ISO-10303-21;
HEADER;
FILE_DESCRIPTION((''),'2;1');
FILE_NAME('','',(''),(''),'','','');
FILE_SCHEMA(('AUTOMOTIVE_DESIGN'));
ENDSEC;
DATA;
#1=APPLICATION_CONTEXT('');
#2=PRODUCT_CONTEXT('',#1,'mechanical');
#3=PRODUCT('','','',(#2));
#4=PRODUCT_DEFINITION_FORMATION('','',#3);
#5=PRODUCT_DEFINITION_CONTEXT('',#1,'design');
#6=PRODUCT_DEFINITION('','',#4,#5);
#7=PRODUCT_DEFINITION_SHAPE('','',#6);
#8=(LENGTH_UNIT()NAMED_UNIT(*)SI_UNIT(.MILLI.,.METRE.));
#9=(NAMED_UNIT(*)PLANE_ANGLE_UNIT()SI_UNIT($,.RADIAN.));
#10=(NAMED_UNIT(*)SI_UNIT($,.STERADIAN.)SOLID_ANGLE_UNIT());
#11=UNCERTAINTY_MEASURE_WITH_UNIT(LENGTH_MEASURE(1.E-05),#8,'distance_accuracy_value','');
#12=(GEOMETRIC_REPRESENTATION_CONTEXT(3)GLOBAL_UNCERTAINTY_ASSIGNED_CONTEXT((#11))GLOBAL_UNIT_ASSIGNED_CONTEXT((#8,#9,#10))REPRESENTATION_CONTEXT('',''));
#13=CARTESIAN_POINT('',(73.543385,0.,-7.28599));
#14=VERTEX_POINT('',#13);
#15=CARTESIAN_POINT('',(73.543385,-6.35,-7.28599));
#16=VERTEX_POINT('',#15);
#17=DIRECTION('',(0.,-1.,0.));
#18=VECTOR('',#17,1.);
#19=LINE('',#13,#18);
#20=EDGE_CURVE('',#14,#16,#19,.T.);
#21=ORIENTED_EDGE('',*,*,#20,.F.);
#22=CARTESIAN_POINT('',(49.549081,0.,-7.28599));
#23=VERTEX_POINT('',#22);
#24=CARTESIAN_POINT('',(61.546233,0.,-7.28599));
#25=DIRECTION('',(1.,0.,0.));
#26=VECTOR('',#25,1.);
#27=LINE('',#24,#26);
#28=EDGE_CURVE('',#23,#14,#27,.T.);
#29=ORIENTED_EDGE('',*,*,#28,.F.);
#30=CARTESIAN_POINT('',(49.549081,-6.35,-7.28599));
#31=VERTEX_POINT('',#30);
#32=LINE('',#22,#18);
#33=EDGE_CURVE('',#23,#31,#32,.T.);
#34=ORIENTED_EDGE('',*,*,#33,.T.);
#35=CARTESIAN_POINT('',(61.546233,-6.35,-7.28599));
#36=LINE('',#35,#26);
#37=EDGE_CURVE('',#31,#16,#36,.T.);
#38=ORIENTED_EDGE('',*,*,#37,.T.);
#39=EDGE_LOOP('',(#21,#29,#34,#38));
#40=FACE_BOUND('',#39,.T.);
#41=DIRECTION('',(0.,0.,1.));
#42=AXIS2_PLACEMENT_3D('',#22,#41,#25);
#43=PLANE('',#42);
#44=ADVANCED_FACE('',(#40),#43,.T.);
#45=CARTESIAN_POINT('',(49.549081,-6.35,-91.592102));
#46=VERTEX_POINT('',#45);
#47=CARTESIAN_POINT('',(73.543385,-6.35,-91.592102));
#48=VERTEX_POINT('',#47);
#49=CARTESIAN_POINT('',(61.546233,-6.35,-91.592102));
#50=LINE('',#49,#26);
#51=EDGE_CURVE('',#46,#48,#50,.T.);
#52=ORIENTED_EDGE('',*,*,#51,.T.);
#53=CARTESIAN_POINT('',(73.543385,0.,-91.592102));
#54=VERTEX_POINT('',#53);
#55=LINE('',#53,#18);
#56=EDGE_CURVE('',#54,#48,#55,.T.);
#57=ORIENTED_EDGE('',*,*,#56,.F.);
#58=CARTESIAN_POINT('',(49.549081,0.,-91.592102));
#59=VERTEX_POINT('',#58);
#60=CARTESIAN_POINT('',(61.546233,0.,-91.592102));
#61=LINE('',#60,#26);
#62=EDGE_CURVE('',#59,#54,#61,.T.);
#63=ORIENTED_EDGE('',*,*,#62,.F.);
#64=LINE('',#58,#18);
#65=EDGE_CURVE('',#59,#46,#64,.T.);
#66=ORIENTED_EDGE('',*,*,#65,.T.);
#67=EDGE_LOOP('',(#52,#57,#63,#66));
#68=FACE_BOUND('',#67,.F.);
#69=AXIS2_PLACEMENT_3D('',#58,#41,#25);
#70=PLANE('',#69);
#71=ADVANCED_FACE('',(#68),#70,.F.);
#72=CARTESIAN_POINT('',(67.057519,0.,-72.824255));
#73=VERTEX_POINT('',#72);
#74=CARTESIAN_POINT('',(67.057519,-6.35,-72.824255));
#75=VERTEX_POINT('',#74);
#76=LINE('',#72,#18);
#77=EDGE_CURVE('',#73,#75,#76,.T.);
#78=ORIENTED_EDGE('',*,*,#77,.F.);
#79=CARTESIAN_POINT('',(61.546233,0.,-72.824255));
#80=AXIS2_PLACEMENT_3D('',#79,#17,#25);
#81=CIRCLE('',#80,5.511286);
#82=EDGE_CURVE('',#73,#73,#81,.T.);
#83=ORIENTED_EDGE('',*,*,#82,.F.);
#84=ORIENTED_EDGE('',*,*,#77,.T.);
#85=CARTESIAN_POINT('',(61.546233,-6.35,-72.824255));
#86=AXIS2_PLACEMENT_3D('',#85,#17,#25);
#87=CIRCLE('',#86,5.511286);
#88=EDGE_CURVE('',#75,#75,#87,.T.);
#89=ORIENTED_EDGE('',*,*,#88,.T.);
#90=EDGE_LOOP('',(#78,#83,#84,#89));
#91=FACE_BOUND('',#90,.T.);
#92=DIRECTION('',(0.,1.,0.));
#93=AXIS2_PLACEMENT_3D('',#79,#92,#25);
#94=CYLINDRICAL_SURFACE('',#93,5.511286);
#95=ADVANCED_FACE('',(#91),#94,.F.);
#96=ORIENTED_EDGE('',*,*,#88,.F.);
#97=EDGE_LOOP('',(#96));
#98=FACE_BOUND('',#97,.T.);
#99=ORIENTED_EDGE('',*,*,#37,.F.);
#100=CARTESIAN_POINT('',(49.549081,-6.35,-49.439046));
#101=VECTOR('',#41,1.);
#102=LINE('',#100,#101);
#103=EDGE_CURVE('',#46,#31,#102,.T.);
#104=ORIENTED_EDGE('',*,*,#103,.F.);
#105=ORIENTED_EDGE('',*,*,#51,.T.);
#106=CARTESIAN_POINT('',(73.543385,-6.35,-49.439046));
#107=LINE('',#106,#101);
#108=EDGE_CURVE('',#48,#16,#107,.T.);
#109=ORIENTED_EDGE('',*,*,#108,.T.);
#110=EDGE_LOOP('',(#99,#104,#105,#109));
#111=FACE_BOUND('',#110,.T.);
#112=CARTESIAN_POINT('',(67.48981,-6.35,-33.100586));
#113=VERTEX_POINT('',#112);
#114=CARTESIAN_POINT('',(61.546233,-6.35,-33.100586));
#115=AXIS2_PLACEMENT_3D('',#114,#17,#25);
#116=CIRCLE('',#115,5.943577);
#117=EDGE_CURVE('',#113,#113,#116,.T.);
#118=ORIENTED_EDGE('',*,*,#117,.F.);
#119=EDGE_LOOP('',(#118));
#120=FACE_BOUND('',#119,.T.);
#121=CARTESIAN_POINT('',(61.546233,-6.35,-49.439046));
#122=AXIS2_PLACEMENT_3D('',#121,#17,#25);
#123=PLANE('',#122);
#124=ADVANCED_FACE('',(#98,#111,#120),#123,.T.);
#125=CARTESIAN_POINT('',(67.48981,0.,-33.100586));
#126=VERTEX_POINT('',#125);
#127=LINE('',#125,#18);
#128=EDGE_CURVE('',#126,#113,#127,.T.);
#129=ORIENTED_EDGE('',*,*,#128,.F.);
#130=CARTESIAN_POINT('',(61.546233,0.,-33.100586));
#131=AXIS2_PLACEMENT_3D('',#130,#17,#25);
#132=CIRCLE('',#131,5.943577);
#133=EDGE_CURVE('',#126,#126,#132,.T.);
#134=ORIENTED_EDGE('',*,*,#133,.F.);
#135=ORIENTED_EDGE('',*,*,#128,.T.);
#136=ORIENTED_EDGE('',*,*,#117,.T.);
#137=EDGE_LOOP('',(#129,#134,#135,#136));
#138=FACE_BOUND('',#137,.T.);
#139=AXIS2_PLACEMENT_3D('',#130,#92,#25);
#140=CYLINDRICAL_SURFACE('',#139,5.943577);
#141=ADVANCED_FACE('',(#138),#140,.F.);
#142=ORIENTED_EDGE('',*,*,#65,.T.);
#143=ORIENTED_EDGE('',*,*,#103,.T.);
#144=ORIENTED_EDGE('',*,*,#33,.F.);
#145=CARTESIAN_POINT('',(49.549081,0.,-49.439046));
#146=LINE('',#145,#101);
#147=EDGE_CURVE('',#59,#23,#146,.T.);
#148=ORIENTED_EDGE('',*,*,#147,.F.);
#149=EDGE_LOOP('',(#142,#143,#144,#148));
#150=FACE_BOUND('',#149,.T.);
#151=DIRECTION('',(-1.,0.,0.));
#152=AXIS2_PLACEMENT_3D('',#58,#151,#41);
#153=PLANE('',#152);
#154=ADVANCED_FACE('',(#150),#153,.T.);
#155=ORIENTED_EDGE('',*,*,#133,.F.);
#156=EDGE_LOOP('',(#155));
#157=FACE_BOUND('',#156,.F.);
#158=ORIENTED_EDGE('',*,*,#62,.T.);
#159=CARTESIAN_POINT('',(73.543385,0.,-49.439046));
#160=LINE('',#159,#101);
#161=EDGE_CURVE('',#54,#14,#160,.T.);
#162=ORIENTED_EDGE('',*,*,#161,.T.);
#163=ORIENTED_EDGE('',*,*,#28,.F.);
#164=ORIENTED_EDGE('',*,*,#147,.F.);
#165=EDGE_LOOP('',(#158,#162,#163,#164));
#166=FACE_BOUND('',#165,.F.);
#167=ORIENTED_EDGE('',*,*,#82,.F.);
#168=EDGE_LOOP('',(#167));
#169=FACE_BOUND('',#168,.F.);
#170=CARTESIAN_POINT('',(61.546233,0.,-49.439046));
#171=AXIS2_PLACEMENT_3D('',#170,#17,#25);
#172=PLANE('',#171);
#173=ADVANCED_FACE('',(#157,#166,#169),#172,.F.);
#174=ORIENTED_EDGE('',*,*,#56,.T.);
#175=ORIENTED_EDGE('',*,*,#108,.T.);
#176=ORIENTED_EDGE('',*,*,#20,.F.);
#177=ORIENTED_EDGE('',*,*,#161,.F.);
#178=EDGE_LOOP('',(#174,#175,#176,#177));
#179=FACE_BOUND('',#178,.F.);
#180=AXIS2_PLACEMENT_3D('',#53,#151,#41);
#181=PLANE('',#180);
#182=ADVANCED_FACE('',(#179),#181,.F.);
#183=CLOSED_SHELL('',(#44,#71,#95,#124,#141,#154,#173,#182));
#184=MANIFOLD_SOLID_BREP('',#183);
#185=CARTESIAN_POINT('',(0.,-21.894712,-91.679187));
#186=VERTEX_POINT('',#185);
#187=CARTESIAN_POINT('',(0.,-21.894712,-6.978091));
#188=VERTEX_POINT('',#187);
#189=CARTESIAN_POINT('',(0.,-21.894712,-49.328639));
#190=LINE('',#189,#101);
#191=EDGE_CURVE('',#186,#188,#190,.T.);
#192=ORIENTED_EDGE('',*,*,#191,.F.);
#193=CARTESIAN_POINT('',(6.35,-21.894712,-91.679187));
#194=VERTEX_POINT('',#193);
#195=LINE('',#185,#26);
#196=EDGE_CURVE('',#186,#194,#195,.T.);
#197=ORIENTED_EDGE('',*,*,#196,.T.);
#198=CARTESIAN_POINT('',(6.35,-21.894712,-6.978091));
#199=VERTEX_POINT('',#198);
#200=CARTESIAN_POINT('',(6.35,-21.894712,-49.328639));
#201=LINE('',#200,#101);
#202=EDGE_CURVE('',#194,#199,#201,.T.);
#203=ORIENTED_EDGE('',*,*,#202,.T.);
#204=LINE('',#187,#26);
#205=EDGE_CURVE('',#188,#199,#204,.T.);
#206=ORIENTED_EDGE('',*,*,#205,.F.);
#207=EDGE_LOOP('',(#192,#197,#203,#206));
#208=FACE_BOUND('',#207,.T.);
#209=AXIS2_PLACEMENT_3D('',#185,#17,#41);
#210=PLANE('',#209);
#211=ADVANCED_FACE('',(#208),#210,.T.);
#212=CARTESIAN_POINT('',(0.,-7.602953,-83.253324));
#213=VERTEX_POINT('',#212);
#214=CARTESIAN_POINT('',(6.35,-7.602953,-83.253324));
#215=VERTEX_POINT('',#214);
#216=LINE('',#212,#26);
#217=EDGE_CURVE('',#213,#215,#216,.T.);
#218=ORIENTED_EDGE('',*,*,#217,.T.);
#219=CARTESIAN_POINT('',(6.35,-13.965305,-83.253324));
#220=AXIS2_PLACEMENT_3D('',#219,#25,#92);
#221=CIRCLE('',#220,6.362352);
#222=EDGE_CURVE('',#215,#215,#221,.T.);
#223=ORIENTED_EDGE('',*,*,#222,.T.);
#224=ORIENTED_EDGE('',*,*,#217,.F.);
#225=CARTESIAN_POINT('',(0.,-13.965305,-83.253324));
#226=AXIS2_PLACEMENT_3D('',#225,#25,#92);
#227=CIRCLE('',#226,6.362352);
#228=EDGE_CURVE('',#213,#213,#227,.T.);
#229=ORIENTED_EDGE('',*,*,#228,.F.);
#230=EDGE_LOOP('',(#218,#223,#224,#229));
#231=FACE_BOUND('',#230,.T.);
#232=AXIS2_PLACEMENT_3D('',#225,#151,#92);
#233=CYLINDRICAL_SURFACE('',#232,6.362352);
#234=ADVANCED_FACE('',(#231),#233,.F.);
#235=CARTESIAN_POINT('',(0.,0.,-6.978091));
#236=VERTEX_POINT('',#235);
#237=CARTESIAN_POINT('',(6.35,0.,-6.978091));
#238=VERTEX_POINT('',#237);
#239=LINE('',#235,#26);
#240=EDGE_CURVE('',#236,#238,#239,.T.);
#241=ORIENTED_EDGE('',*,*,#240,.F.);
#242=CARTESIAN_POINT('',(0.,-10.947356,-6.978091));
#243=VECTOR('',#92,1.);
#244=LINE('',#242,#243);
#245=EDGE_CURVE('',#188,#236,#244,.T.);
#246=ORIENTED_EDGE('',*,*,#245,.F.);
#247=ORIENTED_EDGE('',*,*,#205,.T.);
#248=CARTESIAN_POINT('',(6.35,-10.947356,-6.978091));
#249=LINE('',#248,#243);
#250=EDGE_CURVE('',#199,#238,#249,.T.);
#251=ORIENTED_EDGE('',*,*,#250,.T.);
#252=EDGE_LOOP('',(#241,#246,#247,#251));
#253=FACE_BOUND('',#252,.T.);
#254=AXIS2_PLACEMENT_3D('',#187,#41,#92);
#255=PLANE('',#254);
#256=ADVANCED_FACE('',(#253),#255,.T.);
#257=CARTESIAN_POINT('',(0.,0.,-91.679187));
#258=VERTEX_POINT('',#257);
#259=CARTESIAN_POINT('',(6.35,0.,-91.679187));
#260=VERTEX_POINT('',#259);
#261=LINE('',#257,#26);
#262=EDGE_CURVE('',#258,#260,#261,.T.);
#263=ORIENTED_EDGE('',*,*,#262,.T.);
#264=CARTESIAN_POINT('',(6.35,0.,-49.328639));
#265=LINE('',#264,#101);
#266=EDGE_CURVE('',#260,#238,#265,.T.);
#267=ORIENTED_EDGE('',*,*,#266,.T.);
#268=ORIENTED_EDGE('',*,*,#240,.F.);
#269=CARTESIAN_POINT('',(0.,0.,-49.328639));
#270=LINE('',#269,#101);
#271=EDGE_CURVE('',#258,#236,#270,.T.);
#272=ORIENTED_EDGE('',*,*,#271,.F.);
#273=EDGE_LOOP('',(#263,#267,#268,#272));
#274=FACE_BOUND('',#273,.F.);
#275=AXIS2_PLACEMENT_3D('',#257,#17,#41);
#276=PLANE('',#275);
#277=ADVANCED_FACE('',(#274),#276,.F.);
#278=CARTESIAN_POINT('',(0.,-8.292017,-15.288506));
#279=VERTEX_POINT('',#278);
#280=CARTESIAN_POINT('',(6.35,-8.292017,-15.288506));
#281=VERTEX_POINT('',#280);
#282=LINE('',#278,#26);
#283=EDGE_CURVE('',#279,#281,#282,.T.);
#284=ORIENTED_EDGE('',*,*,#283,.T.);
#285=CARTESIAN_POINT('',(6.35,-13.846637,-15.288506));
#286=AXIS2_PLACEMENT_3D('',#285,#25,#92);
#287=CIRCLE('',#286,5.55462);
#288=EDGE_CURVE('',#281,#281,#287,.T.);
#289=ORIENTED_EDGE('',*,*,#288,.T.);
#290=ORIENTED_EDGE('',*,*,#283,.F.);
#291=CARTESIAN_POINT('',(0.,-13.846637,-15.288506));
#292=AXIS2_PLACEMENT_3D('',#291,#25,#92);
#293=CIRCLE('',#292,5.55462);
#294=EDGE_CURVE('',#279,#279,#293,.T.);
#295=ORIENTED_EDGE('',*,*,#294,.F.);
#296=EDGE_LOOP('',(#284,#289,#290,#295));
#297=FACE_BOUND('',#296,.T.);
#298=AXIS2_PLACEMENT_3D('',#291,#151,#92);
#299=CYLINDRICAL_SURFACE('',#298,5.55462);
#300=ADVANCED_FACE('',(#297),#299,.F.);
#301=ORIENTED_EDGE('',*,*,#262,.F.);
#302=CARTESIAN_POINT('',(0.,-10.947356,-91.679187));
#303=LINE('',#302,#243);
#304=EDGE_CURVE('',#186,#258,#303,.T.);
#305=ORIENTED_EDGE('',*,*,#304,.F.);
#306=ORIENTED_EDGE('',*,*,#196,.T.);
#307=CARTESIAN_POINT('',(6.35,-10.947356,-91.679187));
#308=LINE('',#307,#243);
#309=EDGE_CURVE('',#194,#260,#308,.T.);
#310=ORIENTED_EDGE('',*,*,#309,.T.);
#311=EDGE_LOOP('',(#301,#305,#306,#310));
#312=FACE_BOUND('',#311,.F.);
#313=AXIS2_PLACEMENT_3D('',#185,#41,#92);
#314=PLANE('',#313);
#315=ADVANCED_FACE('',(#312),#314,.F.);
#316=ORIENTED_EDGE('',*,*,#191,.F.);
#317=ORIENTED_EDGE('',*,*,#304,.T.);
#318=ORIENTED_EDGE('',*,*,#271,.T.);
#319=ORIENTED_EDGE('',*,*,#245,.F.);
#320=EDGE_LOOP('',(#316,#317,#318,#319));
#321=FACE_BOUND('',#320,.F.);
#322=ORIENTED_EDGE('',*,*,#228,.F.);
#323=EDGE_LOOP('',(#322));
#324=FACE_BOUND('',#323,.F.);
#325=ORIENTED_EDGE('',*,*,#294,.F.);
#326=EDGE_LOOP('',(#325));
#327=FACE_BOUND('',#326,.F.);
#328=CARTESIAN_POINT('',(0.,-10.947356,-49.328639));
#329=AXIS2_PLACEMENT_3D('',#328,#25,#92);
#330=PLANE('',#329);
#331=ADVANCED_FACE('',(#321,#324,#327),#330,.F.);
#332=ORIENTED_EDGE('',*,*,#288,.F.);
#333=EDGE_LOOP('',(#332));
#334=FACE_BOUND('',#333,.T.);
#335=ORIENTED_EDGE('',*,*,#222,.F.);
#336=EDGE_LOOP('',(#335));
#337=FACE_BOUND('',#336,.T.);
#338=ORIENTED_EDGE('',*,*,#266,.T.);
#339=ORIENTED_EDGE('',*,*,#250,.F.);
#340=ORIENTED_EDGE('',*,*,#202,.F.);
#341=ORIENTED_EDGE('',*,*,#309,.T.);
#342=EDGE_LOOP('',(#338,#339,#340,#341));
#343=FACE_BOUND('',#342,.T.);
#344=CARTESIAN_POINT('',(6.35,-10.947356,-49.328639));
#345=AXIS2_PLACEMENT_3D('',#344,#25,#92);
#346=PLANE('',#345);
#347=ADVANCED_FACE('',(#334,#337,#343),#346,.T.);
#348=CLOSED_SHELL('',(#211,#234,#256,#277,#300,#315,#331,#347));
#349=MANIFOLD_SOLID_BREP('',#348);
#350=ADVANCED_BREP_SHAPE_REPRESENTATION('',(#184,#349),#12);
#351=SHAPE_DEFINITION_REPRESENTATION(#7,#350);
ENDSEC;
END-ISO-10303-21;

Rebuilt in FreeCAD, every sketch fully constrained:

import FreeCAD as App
import Part
import Sketcher
from FreeCAD import Vector


def add_polygon(sketch, points):
    """Adds a closed chain of lines whose ends are joined by coincident constraints."""
    first, n = sketch.GeometryCount, len(points)
    for a, b in zip(points, points[1:] + points[:1]):
        sketch.addGeometry(Part.LineSegment(App.Vector(*a, 0), App.Vector(*b, 0)), False)
    for i in range(n):
        sketch.addConstraint(Sketcher.Constraint("Coincident", first + i, 2, first + (i + 1) % n, 1))

doc = App.newDocument("Part")
params = doc.addObject("Spreadsheet::Sheet", "Params")
for row, (alias, value) in enumerate([
    ("pad1_length", "0.25 in"),
    ("pad2_length", "0.25 in"),
], start=1):
    params.set(f"A{row}", alias)
    params.set(f"B{row}", "=" + value)
    params.setAlias(f"B{row}", alias)

body = doc.addObject("PartDesign::Body", "Body")

# Sketch on XZ plane
sketch1 = doc.addObject("Sketcher::SketchObject", "Sketch")
body.addObject(sketch1)
sketch1.AttachmentSupport = (doc.XZ_Plane, [""])
sketch1.MapMode = "FlatFace"
add_polygon(sketch1, [(49.549081, -7.28599), (49.549081, -91.592102), (73.543385, -91.592102), (73.543385, -7.28599)])  # lines 0-3
sketch1.addGeometry(Part.Circle(Vector(61.546233, -72.824255, 0), Vector(0, 0, 1), 5.511286), False)  # 4
sketch1.addGeometry(Part.Circle(Vector(61.546233, -33.100586, 0), Vector(0, 0, 1), 5.943577), False)  # 5
sketch1.addConstraint([
    Sketcher.Constraint("Vertical", 0),
    Sketcher.Constraint("Horizontal", 1),
    Sketcher.Constraint("Vertical", 2),
    Sketcher.Constraint("Horizontal", 3),
    Sketcher.Constraint("Vertical", 4, 3, 5, 3),
    Sketcher.Constraint("Diameter", 4, 11.022572),
    Sketcher.Constraint("Diameter", 5, 11.887154),
    Sketcher.Constraint("DistanceX", 1, 1, 1, 2, 23.994305),
    Sketcher.Constraint("DistanceY", 0, 2, 0, 1, 84.306113),
    Sketcher.Constraint("DistanceX", -1, 1, 0, 2, 49.549081),
    Sketcher.Constraint("DistanceY", 2, 2, -1, 1, 7.28599),
    Sketcher.Constraint("DistanceY", 4, 3, 5, 3, 39.723669),
    Sketcher.Constraint("DistanceX", -1, 1, 4, 3, 61.546233),
    Sketcher.Constraint("DistanceY", 4, 3, -1, 1, 72.824255),
])
pad1 = doc.addObject("PartDesign::Pad", "Pad")
body.addObject(pad1)
pad1.Profile = sketch1
pad1.setExpression("Length", "Params.pad1_length")
body2 = doc.addObject("PartDesign::Body", "Body001")

# Sketch on YZ plane
sketch2 = doc.addObject("Sketcher::SketchObject", "Sketch001")
body2.addObject(sketch2)
sketch2.AttachmentSupport = (doc.getObject("YZ_Plane001"), [""])
sketch2.MapMode = "FlatFace"
add_polygon(sketch2, [(-21.894712, -6.978091), (-21.894712, -91.679187), (0, -91.679187), (0, -6.978091)])  # lines 0-3
sketch2.addGeometry(Part.Circle(Vector(-13.965305, -83.253324, 0), Vector(0, 0, 1), 6.362352), False)  # 4
sketch2.addGeometry(Part.Circle(Vector(-13.846637, -15.288506, 0), Vector(0, 0, 1), 5.55462), False)  # 5
sketch2.addConstraint([
    Sketcher.Constraint("Vertical", 0),
    Sketcher.Constraint("Horizontal", 1),
    Sketcher.Constraint("Vertical", 2),
    Sketcher.Constraint("Horizontal", 3),
    Sketcher.Constraint("PointOnObject", 1, 2, -2),
    Sketcher.Constraint("Diameter", 5, 11.10924),
    Sketcher.Constraint("Diameter", 4, 12.724704),
    Sketcher.Constraint("DistanceX", 1, 1, 1, 2, 21.894712),
    Sketcher.Constraint("DistanceY", 0, 2, 0, 1, 84.701095),
    Sketcher.Constraint("DistanceY", 2, 2, -1, 1, 6.978091),
    Sketcher.Constraint("DistanceX", 4, 3, 5, 3, 0.118668),
    Sketcher.Constraint("DistanceY", 4, 3, 5, 3, 67.964818),
    Sketcher.Constraint("DistanceY", 0, 2, 5, 3, 76.390681),
    Sketcher.Constraint("DistanceX", 4, 3, -1, 1, 13.965305),
])
pad2 = doc.addObject("PartDesign::Pad", "Pad001")
body2.addObject(pad2)
pad2.Profile = sketch2
pad2.setExpression("Length", "Params.pad2_length")

doc.recompute()
